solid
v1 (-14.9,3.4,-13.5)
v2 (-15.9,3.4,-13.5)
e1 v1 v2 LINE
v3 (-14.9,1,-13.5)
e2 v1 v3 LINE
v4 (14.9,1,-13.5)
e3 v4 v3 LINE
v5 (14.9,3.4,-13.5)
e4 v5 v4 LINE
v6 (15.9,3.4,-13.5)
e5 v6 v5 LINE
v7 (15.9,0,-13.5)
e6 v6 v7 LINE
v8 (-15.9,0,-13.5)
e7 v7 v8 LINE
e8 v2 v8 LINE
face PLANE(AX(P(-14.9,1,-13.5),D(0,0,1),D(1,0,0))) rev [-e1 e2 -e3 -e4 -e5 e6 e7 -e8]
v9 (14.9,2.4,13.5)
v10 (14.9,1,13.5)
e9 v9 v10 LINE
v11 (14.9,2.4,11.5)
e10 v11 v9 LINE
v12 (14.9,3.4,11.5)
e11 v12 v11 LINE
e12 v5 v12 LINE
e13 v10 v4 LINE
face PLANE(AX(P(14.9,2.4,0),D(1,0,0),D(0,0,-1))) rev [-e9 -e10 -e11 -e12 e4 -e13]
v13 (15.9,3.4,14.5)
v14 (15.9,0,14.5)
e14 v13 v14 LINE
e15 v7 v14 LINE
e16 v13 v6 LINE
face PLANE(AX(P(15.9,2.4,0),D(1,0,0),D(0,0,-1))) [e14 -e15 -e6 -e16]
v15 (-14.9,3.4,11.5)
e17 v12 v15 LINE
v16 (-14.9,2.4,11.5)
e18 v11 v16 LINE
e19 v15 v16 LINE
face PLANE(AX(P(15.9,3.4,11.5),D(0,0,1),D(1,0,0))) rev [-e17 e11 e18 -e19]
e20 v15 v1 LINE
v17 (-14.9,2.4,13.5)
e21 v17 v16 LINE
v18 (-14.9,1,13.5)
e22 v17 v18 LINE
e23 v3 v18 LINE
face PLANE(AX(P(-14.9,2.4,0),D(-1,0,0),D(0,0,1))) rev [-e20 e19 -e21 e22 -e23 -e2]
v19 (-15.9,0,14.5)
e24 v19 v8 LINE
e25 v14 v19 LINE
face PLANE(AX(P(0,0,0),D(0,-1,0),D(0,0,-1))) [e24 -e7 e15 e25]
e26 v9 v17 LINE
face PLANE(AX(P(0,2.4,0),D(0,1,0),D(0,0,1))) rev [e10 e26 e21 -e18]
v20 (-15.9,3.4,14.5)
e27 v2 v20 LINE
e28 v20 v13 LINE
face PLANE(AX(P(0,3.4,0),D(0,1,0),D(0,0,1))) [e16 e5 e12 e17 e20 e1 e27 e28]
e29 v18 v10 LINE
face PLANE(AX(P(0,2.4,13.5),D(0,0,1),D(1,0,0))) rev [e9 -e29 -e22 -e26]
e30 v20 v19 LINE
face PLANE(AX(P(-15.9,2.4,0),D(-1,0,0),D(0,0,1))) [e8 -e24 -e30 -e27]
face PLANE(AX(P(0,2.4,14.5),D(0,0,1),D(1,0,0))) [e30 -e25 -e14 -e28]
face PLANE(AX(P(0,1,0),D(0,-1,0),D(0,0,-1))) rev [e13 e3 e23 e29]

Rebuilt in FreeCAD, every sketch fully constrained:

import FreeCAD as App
import Part
import Sketcher


def add_polygon(sketch, points):
    """Adds a closed chain of lines whose ends are joined by coincident constraints."""
    first, n = sketch.GeometryCount, len(points)
    for a, b in zip(points, points[1:] + points[:1]):
        sketch.addGeometry(Part.LineSegment(App.Vector(*a, 0), App.Vector(*b, 0)), False)
    for i in range(n):
        sketch.addConstraint(Sketcher.Constraint("Coincident", first + i, 2, first + (i + 1) % n, 1))

doc = App.newDocument("Part")
body = doc.addObject("PartDesign::Body", "Body")

sketch1 = body.newObject("Sketcher::SketchObject", "Sketch")
sketch1.AttachmentSupport = (doc.getObject("XZ_Plane"), [""])
sketch1.MapMode = "FlatFace"
add_polygon(sketch1, [(-15, -14), (-15, 14), (15, 14), (15, -14)])
sketch1.addConstraint([
    Sketcher.Constraint("Vertical", 0),
    Sketcher.Constraint("Horizontal", 1),
    Sketcher.Constraint("Vertical", 2),
    Sketcher.Constraint("Horizontal", 3),
    Sketcher.Constraint("Symmetric", 0, 2, 2, 2, -1, 1),
    Sketcher.Constraint("DistanceY", 0, 1, 0, 2, 27.0),
    Sketcher.Constraint("DistanceX", 1, 1, 1, 2, 29.8),
])
pad1 = body.newObject("PartDesign::Pad", "Pad")
pad1.Profile = sketch1
pad1.Length = 1
pad1.Reversed = True

sketch2 = body.newObject("Sketcher::SketchObject", "Sketch001")
sketch2.AttachmentSupport = (doc.getObject("XZ_Plane"), [""])
sketch2.MapMode = "FlatFace"
add_polygon(sketch2, [(15.9, -13.5), (15.9, 14.5), (-15.9, 14.5), (-15.9, -13.5), (-14.9, -13.5), (-14.9, 13.5), (14.9, 13.5), (14.9, -13.5)])
sketch2.addConstraint([
    Sketcher.Constraint("Vertical", 0),
    Sketcher.Constraint("Horizontal", 1),
    Sketcher.Constraint("Vertical", 2),
    Sketcher.Constraint("Horizontal", 3),
    Sketcher.Constraint("Vertical", 4),
    Sketcher.Constraint("Horizontal", 5),
    Sketcher.Constraint("Vertical", 6),
    Sketcher.Constraint("Horizontal", 7),
    Sketcher.Constraint("Symmetric", 3, 2, 5, 2, -1, 1),
    Sketcher.Constraint("Symmetric", 2, 2, 7, 2, -2),
    Sketcher.Constraint("DistanceX", 3, 1, 3, 2, 1.0),
    Sketcher.Constraint("DistanceY", 0, 1, 0, 2, 28.0),
    Sketcher.Constraint("DistanceY", 4, 1, 4, 2, 27.0),
    Sketcher.Constraint("DistanceX", 1, 2, 1, 1, 31.8),
])
pad2 = body.newObject("PartDesign::Pad", "Pad001")
pad2.Profile = sketch2
pad2.Length = 2.4
pad2.Reversed = True

sketch3 = body.newObject("Sketcher::SketchObject", "Sketch002")
sketch3.AttachmentSupport = (doc.getObject("XZ_Plane"), [""])
sketch3.MapMode = "FlatFace"
sketch3.AttachmentOffset = App.Placement(App.Vector(0, 0, -2.4), App.Rotation())
add_polygon(sketch3, [(-15.9, 11.5), (-15.9, 14.5), (15.9, 14.5), (15.9, 11.5)])
sketch3.addConstraint([
    Sketcher.Constraint("Vertical", 0),
    Sketcher.Constraint("Horizontal", 1),
    Sketcher.Constraint("Vertical", 2),
    Sketcher.Constraint("Horizontal", 3),
    Sketcher.Constraint("DistanceY", 0, 1, 0, 2, 3.0),
    Sketcher.Constraint("DistanceX", 1, 1, 1, 2, 31.8),
    Sketcher.Constraint("DistanceX", 0, 2, -1, 1, 15.9),
    Sketcher.Constraint("DistanceY", -1, 1, 0, 2, 14.5),
])
pad3 = body.newObject("PartDesign::Pad", "Pad002")
pad3.Profile = sketch3
pad3.Length = 1
pad3.Reversed = True

sketch4 = body.newObject("Sketcher::SketchObject", "Sketch003")
sketch4.AttachmentSupport = (doc.getObject("XZ_Plane"), [""])
sketch4.MapMode = "FlatFace"
sketch4.AttachmentOffset = App.Placement(App.Vector(0, 0, -2.4), App.Rotation())
add_polygon(sketch4, [(14.9, -13.5), (14.9, 11.5), (15.9, 11.5), (15.9, -13.5)])
sketch4.addConstraint([
    Sketcher.Constraint("Vertical", 0),
    Sketcher.Constraint("Horizontal", 1),
    Sketcher.Constraint("Vertical", 2),
    Sketcher.Constraint("Horizontal", 3),
    Sketcher.Constraint("DistanceX", 1, 1, 1, 2, 1.0),
    Sketcher.Constraint("DistanceY", 0, 1, 0, 2, 25.0),
    Sketcher.Constraint("DistanceX", -1, 1, 0, 2, 14.9),
    Sketcher.Constraint("DistanceY", -1, 1, 0, 2, 11.5),
])
pad4 = body.newObject("PartDesign::Pad", "Pad003")
pad4.Profile = sketch4
pad4.Length = 1
pad4.Reversed = True

sketch5 = body.newObject("Sketcher::SketchObject", "Sketch004")
sketch5.AttachmentSupport = (doc.getObject("XZ_Plane"), [""])
sketch5.MapMode = "FlatFace"
sketch5.AttachmentOffset = App.Placement(App.Vector(0, 0, -2.4), App.Rotation())
add_polygon(sketch5, [(-15.9, -13.5), (-15.9, 11.5), (-14.9, 11.5), (-14.9, -13.5)])
sketch5.addConstraint([
    Sketcher.Constraint("Vertical", 0),
    Sketcher.Constraint("Horizontal", 1),
    Sketcher.Constraint("Vertical", 2),
    Sketcher.Constraint("Horizontal", 3),
    Sketcher.Constraint("DistanceX", 1, 1, 1, 2, 1.0),
    Sketcher.Constraint("DistanceY", 0, 1, 0, 2, 25.0),
    Sketcher.Constraint("DistanceX", 0, 2, -1, 1, 15.9),
    Sketcher.Constraint("DistanceY", -1, 1, 0, 2, 11.5),
])
pad5 = body.newObject("PartDesign::Pad", "Pad004")
pad5.Profile = sketch5
pad5.Length = 1
pad5.Reversed = True

doc.recompute()
